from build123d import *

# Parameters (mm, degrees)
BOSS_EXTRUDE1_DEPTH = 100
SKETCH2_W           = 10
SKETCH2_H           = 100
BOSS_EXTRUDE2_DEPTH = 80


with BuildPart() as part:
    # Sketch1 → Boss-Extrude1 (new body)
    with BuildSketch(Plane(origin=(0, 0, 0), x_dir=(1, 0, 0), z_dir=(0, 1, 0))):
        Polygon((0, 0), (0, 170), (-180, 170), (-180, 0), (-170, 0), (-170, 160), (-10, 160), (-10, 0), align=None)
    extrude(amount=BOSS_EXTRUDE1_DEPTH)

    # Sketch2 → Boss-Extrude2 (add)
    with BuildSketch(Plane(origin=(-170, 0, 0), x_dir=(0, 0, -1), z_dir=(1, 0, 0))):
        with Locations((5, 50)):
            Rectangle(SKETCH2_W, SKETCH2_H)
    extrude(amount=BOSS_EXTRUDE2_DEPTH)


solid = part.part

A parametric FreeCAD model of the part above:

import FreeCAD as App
import Part
import Sketcher

V = App.Vector

doc = App.newDocument("Part")
body = doc.addObject("PartDesign::Body", "Body")

# Sketch on XZ plane
sketch1 = body.newObject("Sketcher::SketchObject", "Sketch")
sketch1.AttachmentSupport = (doc.getObject("XZ_Plane"), [""])
sketch1.MapMode = "FlatFace"
sketch1.addGeometry(Part.LineSegment(V(0, 0, 0), V(0, -170, 0)), False)
sketch1.addGeometry(Part.LineSegment(V(0, -170, 0), V(-180, -170, 0)), False)
sketch1.addGeometry(Part.LineSegment(V(-180, -170, 0), V(-180, 0, 0)), False)
sketch1.addGeometry(Part.LineSegment(V(-180, 0, 0), V(-170, 0, 0)), False)
sketch1.addGeometry(Part.LineSegment(V(-170, 0, 0), V(-170, -160, 0)), False)
sketch1.addGeometry(Part.LineSegment(V(-170, -160, 0), V(-10, -160, 0)), False)
sketch1.addGeometry(Part.LineSegment(V(-10, -160, 0), V(-10, 0, 0)), False)
sketch1.addGeometry(Part.LineSegment(V(-10, 0, 0), V(0, 0, 0)), False)
sketch1.addConstraint(Sketcher.Constraint("Coincident", 0, 2, 1, 1))
sketch1.addConstraint(Sketcher.Constraint("Coincident", 1, 2, 2, 1))
sketch1.addConstraint(Sketcher.Constraint("Coincident", 2, 2, 3, 1))
sketch1.addConstraint(Sketcher.Constraint("Coincident", 3, 2, 4, 1))
sketch1.addConstraint(Sketcher.Constraint("Coincident", 4, 2, 5, 1))
sketch1.addConstraint(Sketcher.Constraint("Coincident", 5, 2, 6, 1))
sketch1.addConstraint(Sketcher.Constraint("Coincident", 6, 2, 7, 1))
sketch1.addConstraint(Sketcher.Constraint("Coincident", 7, 2, 0, 1))
sketch1.addConstraint(Sketcher.Constraint("Vertical", 0))
sketch1.addConstraint(Sketcher.Constraint("Horizontal", 1))
sketch1.addConstraint(Sketcher.Constraint("Vertical", 2))
sketch1.addConstraint(Sketcher.Constraint("Horizontal", 3))
sketch1.addConstraint(Sketcher.Constraint("Vertical", 4))
sketch1.addConstraint(Sketcher.Constraint("Horizontal", 5))
sketch1.addConstraint(Sketcher.Constraint("Vertical", 6))
sketch1.addConstraint(Sketcher.Constraint("Horizontal", 7))
sketch1.addConstraint(Sketcher.Constraint("Coincident", 7, 2, -1, 1))
sketch1.addConstraint(Sketcher.Constraint("PointOnObject", 2, 2, -1))
sketch1.addConstraint(Sketcher.Constraint("Equal", 3, 7))
sketch1.addConstraint(Sketcher.Constraint("Equal", 5, 4))
sketch1.addConstraint(Sketcher.Constraint("DistanceX", 1, 2, 1, 1, 180.0))
sketch1.addConstraint(Sketcher.Constraint("DistanceX", 3, 1, 3, 2, 10.0))
sketch1.addConstraint(Sketcher.Constraint("DistanceY", 0, 2, 0, 1, 170.0))
pad1 = body.newObject("PartDesign::Pad", "Pad")
pad1.Profile = sketch1
pad1.Length = 100
pad1.Reversed = True

# Sketch on YZ plane
sketch2 = body.newObject("Sketcher::SketchObject", "Sketch001")
sketch2.AttachmentSupport = (doc.getObject("YZ_Plane"), [""])
sketch2.MapMode = "FlatFace"
sketch2.AttachmentOffset = App.Placement(V(0, 0, -170), App.Rotation())
sketch2.addGeometry(Part.LineSegment(V(100, 0, 0), V(0, 0, 0)), False)
sketch2.addGeometry(Part.LineSegment(V(0, 0, 0), V(0, -10, 0)), False)
sketch2.addGeometry(Part.LineSegment(V(0, -10, 0), V(100, -10, 0)), False)
sketch2.addGeometry(Part.LineSegment(V(100, -10, 0), V(100, 0, 0)), False)
sketch2.addConstraint(Sketcher.Constraint("Coincident", 0, 2, 1, 1))
sketch2.addConstraint(Sketcher.Constraint("Coincident", 1, 2, 2, 1))
sketch2.addConstraint(Sketcher.Constraint("Coincident", 2, 2, 3, 1))
sketch2.addConstraint(Sketcher.Constraint("Coincident", 3, 2, 0, 1))
sketch2.addConstraint(Sketcher.Constraint("Horizontal", 0))
sketch2.addConstraint(Sketcher.Constraint("Vertical", 1))
sketch2.addConstraint(Sketcher.Constraint("Horizontal", 2))
sketch2.addConstraint(Sketcher.Constraint("Vertical", 3))
sketch2.addConstraint(Sketcher.Constraint("Coincident", 0, 2, -1, 1))
sketch2.addConstraint(Sketcher.Constraint("DistanceX", 0, 2, 0, 1, 100.0))
sketch2.addConstraint(Sketcher.Constraint("DistanceY", 1, 2, 1, 1, 10.0))
pad2 = body.newObject("PartDesign::Pad", "Pad001")
pad2.Profile = sketch2
pad2.Length = 80

doc.recompute()
